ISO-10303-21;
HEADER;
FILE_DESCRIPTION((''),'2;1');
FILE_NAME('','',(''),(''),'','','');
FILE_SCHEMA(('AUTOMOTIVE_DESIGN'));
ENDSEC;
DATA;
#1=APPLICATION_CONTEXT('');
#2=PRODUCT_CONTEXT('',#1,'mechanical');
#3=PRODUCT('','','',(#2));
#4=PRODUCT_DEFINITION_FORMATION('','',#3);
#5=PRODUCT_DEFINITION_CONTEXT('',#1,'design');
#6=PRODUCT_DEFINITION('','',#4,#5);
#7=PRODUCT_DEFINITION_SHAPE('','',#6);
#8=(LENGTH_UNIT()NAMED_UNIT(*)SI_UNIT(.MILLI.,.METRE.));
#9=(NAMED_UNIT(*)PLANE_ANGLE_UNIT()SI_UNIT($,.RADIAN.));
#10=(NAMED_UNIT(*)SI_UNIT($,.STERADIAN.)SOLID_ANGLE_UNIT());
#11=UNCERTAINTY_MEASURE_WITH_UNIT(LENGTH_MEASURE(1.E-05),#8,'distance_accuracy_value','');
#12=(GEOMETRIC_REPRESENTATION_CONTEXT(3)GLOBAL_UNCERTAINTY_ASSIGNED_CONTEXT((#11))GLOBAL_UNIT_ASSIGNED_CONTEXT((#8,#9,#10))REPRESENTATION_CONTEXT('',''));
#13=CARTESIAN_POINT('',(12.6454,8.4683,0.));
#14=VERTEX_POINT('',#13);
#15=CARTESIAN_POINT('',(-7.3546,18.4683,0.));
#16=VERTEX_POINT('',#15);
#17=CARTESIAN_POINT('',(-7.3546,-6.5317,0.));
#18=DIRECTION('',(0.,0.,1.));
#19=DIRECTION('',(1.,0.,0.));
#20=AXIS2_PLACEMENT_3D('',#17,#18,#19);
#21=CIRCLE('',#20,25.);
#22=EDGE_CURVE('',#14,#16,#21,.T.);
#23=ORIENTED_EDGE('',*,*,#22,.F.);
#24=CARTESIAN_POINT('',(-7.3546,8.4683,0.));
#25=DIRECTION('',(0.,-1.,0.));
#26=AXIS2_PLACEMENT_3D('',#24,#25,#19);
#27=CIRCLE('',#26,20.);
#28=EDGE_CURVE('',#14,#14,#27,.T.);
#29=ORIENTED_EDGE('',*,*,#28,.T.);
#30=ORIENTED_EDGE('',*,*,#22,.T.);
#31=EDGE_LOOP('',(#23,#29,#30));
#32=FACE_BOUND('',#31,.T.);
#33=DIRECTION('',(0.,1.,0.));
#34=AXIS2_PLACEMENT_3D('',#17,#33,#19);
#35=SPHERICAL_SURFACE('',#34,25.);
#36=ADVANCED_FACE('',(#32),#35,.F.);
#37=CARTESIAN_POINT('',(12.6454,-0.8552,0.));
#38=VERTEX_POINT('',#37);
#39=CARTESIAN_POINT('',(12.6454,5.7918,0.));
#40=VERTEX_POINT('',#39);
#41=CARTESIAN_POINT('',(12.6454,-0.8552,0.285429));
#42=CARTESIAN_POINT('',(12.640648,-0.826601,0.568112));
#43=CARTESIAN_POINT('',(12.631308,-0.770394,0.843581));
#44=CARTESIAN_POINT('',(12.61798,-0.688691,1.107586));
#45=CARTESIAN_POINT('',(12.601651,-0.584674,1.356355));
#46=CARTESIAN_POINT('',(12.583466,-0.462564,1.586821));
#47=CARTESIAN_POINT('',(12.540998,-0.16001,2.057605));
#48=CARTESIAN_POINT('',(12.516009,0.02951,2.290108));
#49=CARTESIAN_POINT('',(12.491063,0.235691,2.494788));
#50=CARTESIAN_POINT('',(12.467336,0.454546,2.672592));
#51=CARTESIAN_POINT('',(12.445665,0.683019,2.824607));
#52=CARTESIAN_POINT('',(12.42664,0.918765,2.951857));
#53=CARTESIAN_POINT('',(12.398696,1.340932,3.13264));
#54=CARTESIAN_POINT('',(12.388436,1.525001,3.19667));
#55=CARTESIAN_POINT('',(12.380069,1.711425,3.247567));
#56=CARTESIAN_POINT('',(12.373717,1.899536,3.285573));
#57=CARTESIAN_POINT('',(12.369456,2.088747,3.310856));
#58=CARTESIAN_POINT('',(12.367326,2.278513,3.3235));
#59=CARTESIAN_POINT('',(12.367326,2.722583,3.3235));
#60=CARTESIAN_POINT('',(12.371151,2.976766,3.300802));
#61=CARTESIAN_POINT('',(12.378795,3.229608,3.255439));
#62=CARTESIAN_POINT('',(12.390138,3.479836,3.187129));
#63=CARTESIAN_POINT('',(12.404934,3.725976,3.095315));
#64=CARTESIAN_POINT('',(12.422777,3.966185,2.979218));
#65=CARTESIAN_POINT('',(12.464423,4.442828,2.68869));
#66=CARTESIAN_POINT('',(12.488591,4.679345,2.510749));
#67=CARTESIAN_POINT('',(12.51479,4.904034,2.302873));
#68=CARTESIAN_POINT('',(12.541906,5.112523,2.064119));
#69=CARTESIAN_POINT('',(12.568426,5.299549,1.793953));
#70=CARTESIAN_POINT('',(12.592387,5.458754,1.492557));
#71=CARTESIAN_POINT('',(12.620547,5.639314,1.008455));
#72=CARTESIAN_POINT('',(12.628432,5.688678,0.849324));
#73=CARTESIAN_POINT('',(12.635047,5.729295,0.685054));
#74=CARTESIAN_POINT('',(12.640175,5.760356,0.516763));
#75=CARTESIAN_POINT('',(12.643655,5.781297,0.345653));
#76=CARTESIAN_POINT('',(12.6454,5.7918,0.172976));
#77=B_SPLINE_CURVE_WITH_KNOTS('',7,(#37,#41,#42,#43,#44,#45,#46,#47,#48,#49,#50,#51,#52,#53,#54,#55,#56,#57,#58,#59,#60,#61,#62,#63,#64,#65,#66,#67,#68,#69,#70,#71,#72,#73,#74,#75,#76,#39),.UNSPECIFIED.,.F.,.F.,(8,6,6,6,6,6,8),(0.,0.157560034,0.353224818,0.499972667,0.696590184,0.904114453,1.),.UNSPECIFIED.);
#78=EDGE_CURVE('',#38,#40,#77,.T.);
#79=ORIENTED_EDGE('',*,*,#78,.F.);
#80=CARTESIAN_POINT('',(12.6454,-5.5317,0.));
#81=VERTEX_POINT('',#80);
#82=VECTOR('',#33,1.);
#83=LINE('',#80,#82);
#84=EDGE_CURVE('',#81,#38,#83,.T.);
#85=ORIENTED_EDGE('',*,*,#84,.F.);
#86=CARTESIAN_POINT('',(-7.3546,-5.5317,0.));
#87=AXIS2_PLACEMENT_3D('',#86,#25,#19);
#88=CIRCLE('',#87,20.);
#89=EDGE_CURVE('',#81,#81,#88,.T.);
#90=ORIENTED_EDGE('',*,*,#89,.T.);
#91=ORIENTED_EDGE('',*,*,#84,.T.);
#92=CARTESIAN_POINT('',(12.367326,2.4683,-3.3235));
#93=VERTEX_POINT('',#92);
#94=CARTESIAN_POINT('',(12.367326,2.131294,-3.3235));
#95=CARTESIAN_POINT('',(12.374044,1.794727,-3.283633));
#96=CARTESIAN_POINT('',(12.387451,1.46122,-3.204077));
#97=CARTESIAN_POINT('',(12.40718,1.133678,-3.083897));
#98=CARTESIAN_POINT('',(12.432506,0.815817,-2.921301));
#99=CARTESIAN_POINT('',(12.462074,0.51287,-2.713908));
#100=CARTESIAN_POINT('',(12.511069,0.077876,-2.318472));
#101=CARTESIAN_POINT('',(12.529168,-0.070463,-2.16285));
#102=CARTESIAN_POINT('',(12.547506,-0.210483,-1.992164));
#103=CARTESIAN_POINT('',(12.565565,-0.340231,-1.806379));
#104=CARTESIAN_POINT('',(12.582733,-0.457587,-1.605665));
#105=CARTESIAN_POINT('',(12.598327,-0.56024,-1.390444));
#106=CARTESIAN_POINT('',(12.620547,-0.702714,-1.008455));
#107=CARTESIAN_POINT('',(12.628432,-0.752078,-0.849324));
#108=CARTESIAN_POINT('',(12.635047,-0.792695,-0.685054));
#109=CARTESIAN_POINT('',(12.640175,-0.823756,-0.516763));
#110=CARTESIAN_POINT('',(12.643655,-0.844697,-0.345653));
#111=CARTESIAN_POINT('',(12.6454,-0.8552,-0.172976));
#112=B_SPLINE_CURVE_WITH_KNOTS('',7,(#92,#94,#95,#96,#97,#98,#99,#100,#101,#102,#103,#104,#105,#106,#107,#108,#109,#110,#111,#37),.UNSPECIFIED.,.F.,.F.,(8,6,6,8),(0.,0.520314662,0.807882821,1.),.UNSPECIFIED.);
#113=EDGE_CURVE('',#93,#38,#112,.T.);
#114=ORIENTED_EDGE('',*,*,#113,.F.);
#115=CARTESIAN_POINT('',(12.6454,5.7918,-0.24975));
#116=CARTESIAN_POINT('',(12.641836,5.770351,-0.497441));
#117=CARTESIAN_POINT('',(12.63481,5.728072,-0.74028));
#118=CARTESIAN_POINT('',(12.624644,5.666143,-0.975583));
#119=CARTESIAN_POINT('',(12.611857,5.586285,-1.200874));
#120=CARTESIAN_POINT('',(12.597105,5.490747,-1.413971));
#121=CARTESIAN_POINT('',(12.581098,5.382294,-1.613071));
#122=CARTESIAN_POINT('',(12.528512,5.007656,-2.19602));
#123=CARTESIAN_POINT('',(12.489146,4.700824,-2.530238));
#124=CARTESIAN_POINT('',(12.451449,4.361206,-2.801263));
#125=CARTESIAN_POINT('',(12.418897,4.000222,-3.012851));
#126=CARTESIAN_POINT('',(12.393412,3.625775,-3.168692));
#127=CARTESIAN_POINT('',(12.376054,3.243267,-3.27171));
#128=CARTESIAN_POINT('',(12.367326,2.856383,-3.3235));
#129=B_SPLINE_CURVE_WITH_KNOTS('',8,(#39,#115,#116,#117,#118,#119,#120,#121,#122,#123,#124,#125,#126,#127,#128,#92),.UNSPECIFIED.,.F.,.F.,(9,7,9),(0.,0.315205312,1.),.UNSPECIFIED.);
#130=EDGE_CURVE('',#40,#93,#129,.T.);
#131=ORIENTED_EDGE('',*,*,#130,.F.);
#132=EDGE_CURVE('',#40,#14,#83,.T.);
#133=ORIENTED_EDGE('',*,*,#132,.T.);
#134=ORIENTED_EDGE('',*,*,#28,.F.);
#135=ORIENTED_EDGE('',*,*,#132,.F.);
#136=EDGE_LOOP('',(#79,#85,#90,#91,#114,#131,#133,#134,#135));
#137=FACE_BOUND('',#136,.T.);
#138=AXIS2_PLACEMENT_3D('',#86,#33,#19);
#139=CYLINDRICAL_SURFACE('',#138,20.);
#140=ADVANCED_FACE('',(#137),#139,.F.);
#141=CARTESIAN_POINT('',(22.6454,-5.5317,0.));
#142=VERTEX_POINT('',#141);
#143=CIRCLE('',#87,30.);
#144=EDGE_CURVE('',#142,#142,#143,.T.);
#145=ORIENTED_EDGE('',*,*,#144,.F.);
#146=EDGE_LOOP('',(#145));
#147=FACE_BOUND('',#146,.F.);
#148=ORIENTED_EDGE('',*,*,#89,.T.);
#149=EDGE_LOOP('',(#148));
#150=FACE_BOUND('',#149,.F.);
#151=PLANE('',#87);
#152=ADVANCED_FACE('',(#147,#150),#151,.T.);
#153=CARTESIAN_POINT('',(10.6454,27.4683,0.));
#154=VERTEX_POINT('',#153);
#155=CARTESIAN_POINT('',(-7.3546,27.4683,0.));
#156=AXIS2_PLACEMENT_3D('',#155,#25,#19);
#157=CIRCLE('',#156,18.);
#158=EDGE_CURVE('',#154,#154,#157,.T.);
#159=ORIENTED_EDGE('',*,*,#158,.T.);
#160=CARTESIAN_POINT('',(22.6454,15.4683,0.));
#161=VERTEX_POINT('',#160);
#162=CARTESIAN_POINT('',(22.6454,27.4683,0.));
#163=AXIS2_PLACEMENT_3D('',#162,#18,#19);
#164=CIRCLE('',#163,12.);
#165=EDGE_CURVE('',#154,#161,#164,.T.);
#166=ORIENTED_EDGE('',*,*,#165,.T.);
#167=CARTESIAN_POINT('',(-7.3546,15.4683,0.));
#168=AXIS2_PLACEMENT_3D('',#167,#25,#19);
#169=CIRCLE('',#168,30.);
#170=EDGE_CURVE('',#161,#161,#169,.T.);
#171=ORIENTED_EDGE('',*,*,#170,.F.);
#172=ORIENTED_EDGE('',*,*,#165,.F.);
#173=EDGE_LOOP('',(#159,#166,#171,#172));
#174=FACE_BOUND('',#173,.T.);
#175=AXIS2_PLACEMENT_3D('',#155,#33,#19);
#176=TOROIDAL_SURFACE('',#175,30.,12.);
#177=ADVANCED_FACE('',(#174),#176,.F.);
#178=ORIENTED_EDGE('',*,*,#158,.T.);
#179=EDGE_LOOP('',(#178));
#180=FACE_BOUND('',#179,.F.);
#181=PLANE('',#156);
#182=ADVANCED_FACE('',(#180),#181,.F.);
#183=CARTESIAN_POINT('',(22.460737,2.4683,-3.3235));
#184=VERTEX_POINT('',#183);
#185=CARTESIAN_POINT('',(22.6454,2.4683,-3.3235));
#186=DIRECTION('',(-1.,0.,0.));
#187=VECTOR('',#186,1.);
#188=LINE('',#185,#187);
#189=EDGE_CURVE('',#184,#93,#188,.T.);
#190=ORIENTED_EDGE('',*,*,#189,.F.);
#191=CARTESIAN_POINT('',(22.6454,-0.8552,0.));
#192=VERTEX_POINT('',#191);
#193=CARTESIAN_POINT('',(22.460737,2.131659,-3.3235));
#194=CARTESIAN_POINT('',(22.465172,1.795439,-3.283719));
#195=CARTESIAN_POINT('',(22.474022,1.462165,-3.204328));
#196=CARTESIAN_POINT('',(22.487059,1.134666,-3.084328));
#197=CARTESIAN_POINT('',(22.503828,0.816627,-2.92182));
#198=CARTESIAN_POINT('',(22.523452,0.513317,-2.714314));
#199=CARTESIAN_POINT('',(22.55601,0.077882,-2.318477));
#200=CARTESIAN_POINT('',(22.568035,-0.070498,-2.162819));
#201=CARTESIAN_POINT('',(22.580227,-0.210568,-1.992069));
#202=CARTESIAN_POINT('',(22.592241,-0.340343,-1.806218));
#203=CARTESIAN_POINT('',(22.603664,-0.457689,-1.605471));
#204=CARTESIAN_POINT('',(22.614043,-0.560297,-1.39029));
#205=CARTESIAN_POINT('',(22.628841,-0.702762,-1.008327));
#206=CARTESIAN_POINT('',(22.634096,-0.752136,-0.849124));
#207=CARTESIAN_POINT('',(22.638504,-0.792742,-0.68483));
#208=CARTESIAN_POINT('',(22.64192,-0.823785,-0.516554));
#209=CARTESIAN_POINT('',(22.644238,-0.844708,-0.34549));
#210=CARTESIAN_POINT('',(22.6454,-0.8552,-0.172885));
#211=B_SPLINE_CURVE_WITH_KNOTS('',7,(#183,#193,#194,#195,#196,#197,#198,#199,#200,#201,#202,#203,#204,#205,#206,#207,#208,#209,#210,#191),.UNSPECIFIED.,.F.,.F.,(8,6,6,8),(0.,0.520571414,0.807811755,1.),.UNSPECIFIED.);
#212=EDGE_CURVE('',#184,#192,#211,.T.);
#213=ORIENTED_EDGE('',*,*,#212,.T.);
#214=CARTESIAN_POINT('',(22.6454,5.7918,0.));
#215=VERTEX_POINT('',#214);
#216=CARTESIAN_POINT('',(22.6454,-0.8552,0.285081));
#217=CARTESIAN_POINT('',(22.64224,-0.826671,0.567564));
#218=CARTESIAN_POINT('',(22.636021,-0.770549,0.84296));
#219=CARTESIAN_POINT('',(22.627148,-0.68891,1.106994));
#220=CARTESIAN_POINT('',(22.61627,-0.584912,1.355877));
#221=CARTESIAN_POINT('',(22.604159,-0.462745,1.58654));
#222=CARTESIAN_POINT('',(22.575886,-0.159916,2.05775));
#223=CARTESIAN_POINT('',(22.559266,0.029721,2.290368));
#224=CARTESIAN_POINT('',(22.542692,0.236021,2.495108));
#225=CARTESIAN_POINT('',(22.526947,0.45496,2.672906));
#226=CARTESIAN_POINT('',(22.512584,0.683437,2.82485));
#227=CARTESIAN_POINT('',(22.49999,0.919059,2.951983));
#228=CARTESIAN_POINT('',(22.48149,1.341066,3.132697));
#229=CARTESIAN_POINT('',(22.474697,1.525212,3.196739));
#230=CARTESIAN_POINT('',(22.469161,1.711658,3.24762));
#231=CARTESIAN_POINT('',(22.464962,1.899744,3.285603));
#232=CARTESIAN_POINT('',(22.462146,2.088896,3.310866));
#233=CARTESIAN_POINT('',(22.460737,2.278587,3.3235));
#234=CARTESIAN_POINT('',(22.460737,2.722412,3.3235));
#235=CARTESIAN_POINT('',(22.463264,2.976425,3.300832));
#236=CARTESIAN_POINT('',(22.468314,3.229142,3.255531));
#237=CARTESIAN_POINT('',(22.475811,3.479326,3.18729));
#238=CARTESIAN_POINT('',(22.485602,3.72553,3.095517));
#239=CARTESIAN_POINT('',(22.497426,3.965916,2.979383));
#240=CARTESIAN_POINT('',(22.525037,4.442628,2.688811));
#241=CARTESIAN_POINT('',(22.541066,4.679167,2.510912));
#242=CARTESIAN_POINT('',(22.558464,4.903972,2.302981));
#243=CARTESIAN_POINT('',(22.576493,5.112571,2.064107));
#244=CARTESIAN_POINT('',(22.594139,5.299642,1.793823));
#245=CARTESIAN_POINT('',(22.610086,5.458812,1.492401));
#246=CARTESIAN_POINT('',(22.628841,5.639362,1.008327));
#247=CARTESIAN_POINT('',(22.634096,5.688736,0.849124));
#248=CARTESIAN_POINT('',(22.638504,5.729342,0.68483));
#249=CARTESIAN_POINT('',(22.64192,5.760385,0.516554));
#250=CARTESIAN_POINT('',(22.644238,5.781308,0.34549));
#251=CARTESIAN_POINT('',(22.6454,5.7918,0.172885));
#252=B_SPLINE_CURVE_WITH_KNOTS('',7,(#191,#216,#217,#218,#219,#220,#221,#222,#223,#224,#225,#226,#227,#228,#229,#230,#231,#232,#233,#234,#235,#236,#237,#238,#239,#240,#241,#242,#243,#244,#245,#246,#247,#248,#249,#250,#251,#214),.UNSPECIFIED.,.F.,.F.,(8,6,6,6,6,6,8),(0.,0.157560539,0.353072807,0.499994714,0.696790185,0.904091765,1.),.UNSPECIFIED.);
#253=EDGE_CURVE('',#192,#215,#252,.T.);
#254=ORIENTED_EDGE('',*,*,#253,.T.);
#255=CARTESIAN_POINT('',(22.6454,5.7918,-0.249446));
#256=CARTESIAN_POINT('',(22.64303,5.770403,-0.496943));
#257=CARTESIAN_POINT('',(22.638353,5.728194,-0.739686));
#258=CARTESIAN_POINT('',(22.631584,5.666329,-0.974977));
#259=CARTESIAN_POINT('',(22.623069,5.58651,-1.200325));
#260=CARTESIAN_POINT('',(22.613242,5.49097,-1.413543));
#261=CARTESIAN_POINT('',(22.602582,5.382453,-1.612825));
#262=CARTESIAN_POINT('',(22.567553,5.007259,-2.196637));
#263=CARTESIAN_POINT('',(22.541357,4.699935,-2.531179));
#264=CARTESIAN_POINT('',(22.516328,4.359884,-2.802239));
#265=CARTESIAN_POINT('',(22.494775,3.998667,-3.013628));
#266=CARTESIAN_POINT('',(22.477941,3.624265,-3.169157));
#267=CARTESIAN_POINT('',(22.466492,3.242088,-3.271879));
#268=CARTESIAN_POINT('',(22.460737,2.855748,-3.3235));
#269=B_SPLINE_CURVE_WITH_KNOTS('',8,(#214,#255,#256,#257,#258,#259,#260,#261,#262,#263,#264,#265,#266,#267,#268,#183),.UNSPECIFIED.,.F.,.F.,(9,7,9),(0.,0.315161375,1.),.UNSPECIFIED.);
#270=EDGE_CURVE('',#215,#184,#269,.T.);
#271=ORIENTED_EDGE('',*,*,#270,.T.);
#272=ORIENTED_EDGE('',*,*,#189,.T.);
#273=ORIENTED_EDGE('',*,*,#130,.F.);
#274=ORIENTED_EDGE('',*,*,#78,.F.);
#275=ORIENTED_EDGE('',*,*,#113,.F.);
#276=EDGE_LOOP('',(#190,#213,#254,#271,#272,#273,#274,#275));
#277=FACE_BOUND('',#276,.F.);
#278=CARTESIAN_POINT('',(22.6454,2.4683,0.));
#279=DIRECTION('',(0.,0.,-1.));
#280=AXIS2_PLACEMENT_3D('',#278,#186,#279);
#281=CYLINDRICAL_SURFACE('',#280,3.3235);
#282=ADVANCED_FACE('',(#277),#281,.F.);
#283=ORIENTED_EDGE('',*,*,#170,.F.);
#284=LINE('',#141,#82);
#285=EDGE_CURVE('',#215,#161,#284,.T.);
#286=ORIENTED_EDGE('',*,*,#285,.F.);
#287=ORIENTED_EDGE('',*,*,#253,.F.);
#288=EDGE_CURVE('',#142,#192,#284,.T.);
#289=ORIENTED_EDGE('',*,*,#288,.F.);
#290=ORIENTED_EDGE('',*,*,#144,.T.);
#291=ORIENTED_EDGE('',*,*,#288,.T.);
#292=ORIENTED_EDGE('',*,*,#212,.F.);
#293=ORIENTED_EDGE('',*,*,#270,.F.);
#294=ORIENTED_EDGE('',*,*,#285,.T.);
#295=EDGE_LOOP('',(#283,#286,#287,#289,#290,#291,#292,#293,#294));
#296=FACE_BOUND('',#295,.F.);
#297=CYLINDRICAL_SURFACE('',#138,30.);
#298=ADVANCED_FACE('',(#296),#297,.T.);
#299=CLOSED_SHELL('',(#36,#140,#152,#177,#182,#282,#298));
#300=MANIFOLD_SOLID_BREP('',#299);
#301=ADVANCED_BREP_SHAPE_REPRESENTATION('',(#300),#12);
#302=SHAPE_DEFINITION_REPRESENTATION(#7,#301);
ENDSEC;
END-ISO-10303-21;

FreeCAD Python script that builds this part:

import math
import FreeCAD as App
import Part
import Sketcher
from FreeCAD import Vector

doc = App.newDocument("Part")
body = doc.addObject("PartDesign::Body", "Body")

# Sketch on XY plane
sketch1 = body.newObject("Sketcher::SketchObject", "Sketch")
sketch1.AttachmentSupport = (doc.getObject("XY_Plane"), [""])
sketch1.MapMode = "FlatFace"
sketch1.addGeometry(Part.LineSegment(Vector(12.6454, 8.4683, 0), Vector(12.6454, -5.5317, 0)), False)
sketch1.addGeometry(Part.LineSegment(Vector(12.6454, -5.5317, 0), Vector(22.6454, -5.5317, 0)), False)
sketch1.addGeometry(Part.LineSegment(Vector(22.6454, -5.5317, 0), Vector(22.6454, 15.4683, 0)), False)
sketch1.addGeometry(Part.ArcOfCircle(Part.Circle(Vector(22.6454, 27.4683, 0), Vector(0, 0, 1), 12), math.radians(180), math.radians(270)), False)
sketch1.addGeometry(Part.LineSegment(Vector(10.6454, 27.4683, 0), Vector(-7.3546, 27.4683, 0)), False)
sketch1.addGeometry(Part.LineSegment(Vector(-7.3546, 27.4683, 0), Vector(-7.3546, 18.4683, 0)), False)
sketch1.addGeometry(Part.ArcOfCircle(Part.Circle(Vector(-7.3546, -6.5317, 0), Vector(0, 0, 1), 25), math.radians(36.869898), math.radians(90)), False)
sketch1.addGeometry(Part.LineSegment(Vector(-7.3546, 27.4683, 0), Vector(-7.3546, -6.5317, 0)), True)  # axis
sketch1.addConstraint(Sketcher.Constraint("Coincident", 0, 2, 1, 1))
sketch1.addConstraint(Sketcher.Constraint("Coincident", 1, 2, 2, 1))
sketch1.addConstraint(Sketcher.Constraint("Coincident", 2, 2, 3, 2))
sketch1.addConstraint(Sketcher.Constraint("Coincident", 3, 1, 4, 1))
sketch1.addConstraint(Sketcher.Constraint("Coincident", 4, 2, 5, 1))
sketch1.addConstraint(Sketcher.Constraint("Coincident", 5, 2, 6, 2))
sketch1.addConstraint(Sketcher.Constraint("Coincident", 6, 1, 0, 1))
sketch1.addConstraint(Sketcher.Constraint("Vertical", 0))
sketch1.addConstraint(Sketcher.Constraint("Horizontal", 1))
sketch1.addConstraint(Sketcher.Constraint("Vertical", 2))
sketch1.addConstraint(Sketcher.Constraint("Horizontal", 4))
sketch1.addConstraint(Sketcher.Constraint("Vertical", 5))
sketch1.addConstraint(Sketcher.Constraint("Vertical", 7))
sketch1.addConstraint(Sketcher.Constraint("Coincident", 7, 1, 4, 2))
sketch1.addConstraint(Sketcher.Constraint("Coincident", 7, 2, 6, 3))
sketch1.addConstraint(Sketcher.Constraint("Vertical", 3, 3, 1, 2))
sketch1.addConstraint(Sketcher.Constraint("Radius", 3, 12.0))
sketch1.addConstraint(Sketcher.Constraint("Radius", 6, 25.0))
sketch1.addConstraint(Sketcher.Constraint("DistanceX", 1, 1, 1, 2, 10.0))
sketch1.addConstraint(Sketcher.Constraint("DistanceY", 0, 2, 0, 1, 14.0))
sketch1.addConstraint(Sketcher.Constraint("DistanceX", 6, 3, 3, 3, 30.0))
sketch1.addConstraint(Sketcher.Constraint("DistanceY", 0, 2, 3, 3, 33.0))
sketch1.addConstraint(Sketcher.Constraint("DistanceY", 0, 2, 3, 1, 33.0))
sketch1.addConstraint(Sketcher.Constraint("DistanceX", -1, 1, 3, 3, 22.6454))
sketch1.addConstraint(Sketcher.Constraint("DistanceY", -1, 1, 3, 3, 27.4683))
revolution = body.newObject("PartDesign::Revolution", "Revolution")
revolution.Profile = sketch1
revolution.ReferenceAxis = (sketch1, ["Axis0"])
revolution.Angle = 360

# Sketch on YZ plane
sketch2 = body.newObject("Sketcher::SketchObject", "Sketch001")
sketch2.AttachmentSupport = (doc.getObject("YZ_Plane"), [""])
sketch2.MapMode = "FlatFace"
sketch2.AttachmentOffset = App.Placement(Vector(0, 0, 22.6454), App.Rotation())
sketch2.addGeometry(Part.Circle(Vector(2.4683, 0, 0), Vector(0, 0, 1), 3.3235), False)
sketch2.addConstraint(Sketcher.Constraint("PointOnObject", 0, 3, -1))
sketch2.addConstraint(Sketcher.Constraint("Diameter", 0, 6.647))
sketch2.addConstraint(Sketcher.Constraint("DistanceX", -1, 1, 0, 3, 2.4683))
doc.recompute()
hole = body.newObject("PartDesign::Hole", "Hole")
hole.Profile = sketch2
hole.ThreadType = "None"
hole.Diameter = 6.647
hole.DepthType = "Dimension"
hole.Depth = 22.2
hole.DrillPoint = "Flat"

doc.recompute()
